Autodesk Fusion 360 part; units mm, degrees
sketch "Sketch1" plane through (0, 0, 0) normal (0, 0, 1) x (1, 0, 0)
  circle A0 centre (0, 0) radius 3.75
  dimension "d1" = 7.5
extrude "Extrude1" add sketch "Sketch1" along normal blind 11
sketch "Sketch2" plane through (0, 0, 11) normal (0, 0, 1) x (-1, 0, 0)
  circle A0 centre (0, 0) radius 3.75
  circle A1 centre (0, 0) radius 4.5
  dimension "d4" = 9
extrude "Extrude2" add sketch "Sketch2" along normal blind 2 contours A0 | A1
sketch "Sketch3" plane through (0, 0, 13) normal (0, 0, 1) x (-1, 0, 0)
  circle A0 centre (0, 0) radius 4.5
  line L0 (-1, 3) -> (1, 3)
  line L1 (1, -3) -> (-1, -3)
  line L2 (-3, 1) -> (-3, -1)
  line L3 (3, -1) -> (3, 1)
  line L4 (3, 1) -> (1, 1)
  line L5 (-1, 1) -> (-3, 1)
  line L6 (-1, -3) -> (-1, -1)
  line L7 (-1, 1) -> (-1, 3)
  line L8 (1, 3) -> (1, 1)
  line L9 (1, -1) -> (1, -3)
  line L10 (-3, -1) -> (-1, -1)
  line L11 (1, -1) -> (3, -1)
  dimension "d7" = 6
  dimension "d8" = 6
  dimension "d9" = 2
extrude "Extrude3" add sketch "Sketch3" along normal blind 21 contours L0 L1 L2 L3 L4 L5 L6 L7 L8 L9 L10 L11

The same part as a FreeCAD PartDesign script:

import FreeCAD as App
import Part
import Sketcher
from FreeCAD import Vector


def add_polygon(sketch, points):
    """Adds a closed chain of lines whose ends are joined by coincident constraints."""
    first, n = sketch.GeometryCount, len(points)
    for a, b in zip(points, points[1:] + points[:1]):
        sketch.addGeometry(Part.LineSegment(App.Vector(*a, 0), App.Vector(*b, 0)), False)
    for i in range(n):
        sketch.addConstraint(Sketcher.Constraint("Coincident", first + i, 2, first + (i + 1) % n, 1))

doc = App.newDocument("Part")
params = doc.addObject("Spreadsheet::Sheet", "Params")
for row, (alias, value) in enumerate([
    ("sketch1_diameter", "7.5 mm"),
    ("pad1_length", "11 mm"),
    ("sketch2_diameter", "9 mm"),
    ("pad2_length", "2 mm"),
    ("sketch3_width", "2 mm"),
    ("pad3_length", "21 mm"),
], start=1):
    params.set(f"A{row}", alias)
    params.set(f"B{row}", "=" + value)
    params.setAlias(f"B{row}", alias)

body = doc.addObject("PartDesign::Body", "Body")

# Sketch on XY plane
sketch1 = body.newObject("Sketcher::SketchObject", "Sketch")
sketch1.AttachmentSupport = (doc.getObject("XY_Plane"), [""])
sketch1.MapMode = "FlatFace"
sketch1.addGeometry(Part.Circle(Vector(0, 0, 0), Vector(0, 0, 1), 3.75), False)
sketch1.addConstraint([
    Sketcher.Constraint("Coincident", 0, 3, -1, 1),
    Sketcher.Constraint("Diameter", 0, 7.5),
])
sketch1.setExpression("Constraints[1]", "Params.sketch1_diameter")
pad1 = body.newObject("PartDesign::Pad", "Pad")
pad1.Profile = sketch1
pad1.setExpression("Length", "Params.pad1_length")

# Sketch on XY plane
sketch2 = body.newObject("Sketcher::SketchObject", "Sketch001")
sketch2.AttachmentSupport = (doc.getObject("XY_Plane"), [""])
sketch2.MapMode = "FlatFace"
sketch2.AttachmentOffset = App.Placement(Vector(0, 0, 11), App.Rotation())
sketch2.addGeometry(Part.Circle(Vector(0, 0, 0), Vector(0, 0, 1), 4.5), False)
sketch2.addConstraint([
    Sketcher.Constraint("Coincident", 0, 3, -1, 1),
    Sketcher.Constraint("Diameter", 0, 9.0),
])
sketch2.setExpression("Constraints[1]", "Params.sketch2_diameter")
pad2 = body.newObject("PartDesign::Pad", "Pad001")
pad2.Profile = sketch2
pad2.setExpression("Length", "Params.pad2_length")

# Sketch on XY plane
sketch3 = body.newObject("Sketcher::SketchObject", "Sketch002")
sketch3.AttachmentSupport = (doc.getObject("XY_Plane"), [""])
sketch3.MapMode = "FlatFace"
sketch3.AttachmentOffset = App.Placement(Vector(0, 0, 13), App.Rotation())
add_polygon(sketch3, [(-1, -3), (1, -3), (1, -1), (3, -1), (3, 1), (1, 1), (1, 3), (-1, 3), (-1, 1), (-3, 1), (-3, -1), (-1, -1)])  # lines 0-11
sketch3.addConstraint([
    Sketcher.Constraint("Horizontal", 0),
    Sketcher.Constraint("Vertical", 1),
    Sketcher.Constraint("Horizontal", 2),
    Sketcher.Constraint("Vertical", 3),
    Sketcher.Constraint("Horizontal", 4),
    Sketcher.Constraint("Vertical", 5),
    Sketcher.Constraint("Horizontal", 6),
    Sketcher.Constraint("Vertical", 7),
    Sketcher.Constraint("Horizontal", 8),
    Sketcher.Constraint("Vertical", 9),
    Sketcher.Constraint("Horizontal", 10),
    Sketcher.Constraint("Vertical", 11),
    Sketcher.Constraint("Symmetric", 0, 2, 6, 2, -1, 1),
    Sketcher.Constraint("Symmetric", 2, 2, 8, 2, -1, 1),
    Sketcher.Constraint("Symmetric", 4, 2, 10, 2, -1, 1),
    Sketcher.Constraint("Symmetric", 4, 2, 7, 2, -2),
    Sketcher.Constraint("Equal", 0, 2),
    Sketcher.Constraint("Equal", 10, 1),
    Sketcher.Constraint("Equal", 1, 3),
    Sketcher.Constraint("DistanceX", 0, 1, 0, 2, 2.0),
])
sketch3.setExpression("Constraints[31]", "Params.sketch3_width")
pad3 = body.newObject("PartDesign::Pad", "Pad002")
pad3.Profile = sketch3
pad3.setExpression("Length", "Params.pad3_length")

doc.recompute()
